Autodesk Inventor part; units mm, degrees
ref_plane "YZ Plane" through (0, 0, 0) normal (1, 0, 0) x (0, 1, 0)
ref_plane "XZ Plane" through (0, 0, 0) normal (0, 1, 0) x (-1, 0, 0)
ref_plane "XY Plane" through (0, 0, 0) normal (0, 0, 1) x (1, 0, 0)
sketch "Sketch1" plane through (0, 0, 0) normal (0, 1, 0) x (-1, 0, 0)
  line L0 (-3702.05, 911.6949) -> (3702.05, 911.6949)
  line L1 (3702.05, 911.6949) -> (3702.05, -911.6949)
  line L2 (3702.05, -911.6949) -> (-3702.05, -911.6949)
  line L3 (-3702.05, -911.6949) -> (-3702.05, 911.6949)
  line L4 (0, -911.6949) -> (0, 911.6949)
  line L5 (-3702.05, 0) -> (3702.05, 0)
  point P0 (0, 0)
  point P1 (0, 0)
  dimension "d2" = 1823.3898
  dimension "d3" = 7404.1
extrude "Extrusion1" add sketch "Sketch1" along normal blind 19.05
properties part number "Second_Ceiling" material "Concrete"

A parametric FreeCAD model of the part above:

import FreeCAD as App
import Part
import Sketcher

V = App.Vector
Q = App.Units.Quantity

doc = App.newDocument("Part")
body = doc.addObject("PartDesign::Body", "Body")

sketch1 = body.newObject("Sketcher::SketchObject", "Sketch")
sketch1.AttachmentSupport = (doc.getObject("XZ_Plane"), [""])
sketch1.MapMode = "FlatFace"
sketch1.addGeometry([
    Part.LineSegment(V(3702, 912, 0), V(3702, -912, 0)),
    Part.LineSegment(V(3702, -912, 0), V(-3702, -912, 0)),
    Part.LineSegment(V(-3702, -912, 0), V(-3702, 912, 0)),
    Part.LineSegment(V(-3702, 912, 0), V(3702, 912, 0)),
], False)
sketch1.addConstraint([
    Sketcher.Constraint("Coincident", 0, 2, 1, 1),
    Sketcher.Constraint("Coincident", 1, 2, 2, 1),
    Sketcher.Constraint("Coincident", 2, 2, 3, 1),
    Sketcher.Constraint("Coincident", 3, 2, 0, 1),
    Sketcher.Constraint("Vertical", 0),
    Sketcher.Constraint("Horizontal", 1),
    Sketcher.Constraint("Vertical", 2),
    Sketcher.Constraint("Horizontal", 3),
    Sketcher.Constraint("Symmetric", 0, 2, 2, 2, -1, 1),
    Sketcher.Constraint("DistanceX", 1, 2, 1, 1, Q("291.5 in")),
    Sketcher.Constraint("DistanceY", 0, 2, 0, 1, Q("71.787 in")),
])
pad1 = body.newObject("PartDesign::Pad", "Pad")
pad1.Profile = sketch1
pad1.Length = Q("0.75 in")
pad1.Reversed = True

doc.recompute()
